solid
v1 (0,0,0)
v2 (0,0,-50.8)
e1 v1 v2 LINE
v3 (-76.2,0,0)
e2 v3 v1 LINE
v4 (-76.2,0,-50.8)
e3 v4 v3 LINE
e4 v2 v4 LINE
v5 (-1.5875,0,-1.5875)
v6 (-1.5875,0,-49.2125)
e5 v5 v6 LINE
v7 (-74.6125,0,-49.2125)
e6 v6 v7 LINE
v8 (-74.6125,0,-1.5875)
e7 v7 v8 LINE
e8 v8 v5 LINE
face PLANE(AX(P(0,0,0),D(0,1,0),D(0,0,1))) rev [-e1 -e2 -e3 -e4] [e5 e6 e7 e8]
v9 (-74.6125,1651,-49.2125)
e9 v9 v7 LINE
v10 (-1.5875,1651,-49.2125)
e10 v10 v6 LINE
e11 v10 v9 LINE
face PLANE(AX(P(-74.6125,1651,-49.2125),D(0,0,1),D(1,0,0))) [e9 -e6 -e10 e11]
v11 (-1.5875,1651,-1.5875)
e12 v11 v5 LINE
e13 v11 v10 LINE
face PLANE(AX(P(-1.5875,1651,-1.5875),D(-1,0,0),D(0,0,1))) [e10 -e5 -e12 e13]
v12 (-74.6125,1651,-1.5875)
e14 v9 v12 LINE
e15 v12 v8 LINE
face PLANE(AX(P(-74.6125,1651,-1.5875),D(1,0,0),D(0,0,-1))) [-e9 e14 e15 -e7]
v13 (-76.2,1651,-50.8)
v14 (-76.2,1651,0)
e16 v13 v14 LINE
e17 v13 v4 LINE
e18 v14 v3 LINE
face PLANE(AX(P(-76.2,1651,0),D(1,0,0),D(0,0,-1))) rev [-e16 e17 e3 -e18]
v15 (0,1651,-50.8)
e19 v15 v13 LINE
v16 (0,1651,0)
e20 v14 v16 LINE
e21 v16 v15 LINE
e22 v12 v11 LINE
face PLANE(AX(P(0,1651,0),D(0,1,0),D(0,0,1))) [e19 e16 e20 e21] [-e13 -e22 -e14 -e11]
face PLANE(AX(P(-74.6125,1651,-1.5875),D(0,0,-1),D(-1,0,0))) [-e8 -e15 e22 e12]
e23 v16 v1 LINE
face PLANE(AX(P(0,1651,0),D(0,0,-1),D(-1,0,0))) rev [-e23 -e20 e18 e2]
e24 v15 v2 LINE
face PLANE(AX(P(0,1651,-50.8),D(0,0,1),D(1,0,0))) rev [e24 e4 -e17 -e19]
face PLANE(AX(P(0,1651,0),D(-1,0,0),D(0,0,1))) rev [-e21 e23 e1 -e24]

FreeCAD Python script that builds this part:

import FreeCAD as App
import Part
import Sketcher

V = App.Vector
Q = App.Units.Quantity

doc = App.newDocument("Part")
params = doc.addObject("Spreadsheet::Sheet", "Params")
for row, (alias, value) in enumerate([
    ("sketch1_width", "3 in"),
    ("sketch1_height", "2 in"),
    ("sketch1_width2", "2.875 in"),
    ("sketch1_height2", "1.875 in"),
    ("pad1_length", "65 in"),
], start=1):
    params.set(f"A{row}", alias)
    params.set(f"B{row}", "=" + value)
    params.setAlias(f"B{row}", alias)

body = doc.addObject("PartDesign::Body", "Body")

# Sketch on XZ plane
sketch1 = doc.addObject("Sketcher::SketchObject", "Sketch")
body.addObject(sketch1)
sketch1.AttachmentSupport = (doc.XZ_Plane, [""])
sketch1.MapMode = "FlatFace"
sketch1.addGeometry([
    Part.LineSegment(V(-76, -51, 0), V(-76, 0, 0)),  # 0
    Part.LineSegment(V(-76, 0, 0), V(0, 0, 0)),  # 1
    Part.LineSegment(V(0, 0, 0), V(0, -51, 0)),  # 2
    Part.LineSegment(V(0, -51, 0), V(-76, -51, 0)),  # 3
    Part.LineSegment(V(-2, -2, 0), V(-75, -2, 0)),  # 4
    Part.LineSegment(V(-75, -2, 0), V(-75, -49, 0)),  # 5
    Part.LineSegment(V(-75, -49, 0), V(-2, -49, 0)),  # 6
    Part.LineSegment(V(-2, -49, 0), V(-2, -2, 0)),  # 7
], False)
sketch1.addConstraint([
    Sketcher.Constraint("Coincident", 0, 2, 1, 1),
    Sketcher.Constraint("Coincident", 1, 2, 2, 1),
    Sketcher.Constraint("Coincident", 2, 2, 3, 1),
    Sketcher.Constraint("Coincident", 3, 2, 0, 1),
    Sketcher.Constraint("Coincident", 4, 2, 5, 1),
    Sketcher.Constraint("Coincident", 5, 2, 6, 1),
    Sketcher.Constraint("Coincident", 6, 2, 7, 1),
    Sketcher.Constraint("Coincident", 7, 2, 4, 1),
    Sketcher.Constraint("Vertical", 0),
    Sketcher.Constraint("Horizontal", 1),
    Sketcher.Constraint("Vertical", 2),
    Sketcher.Constraint("Horizontal", 3),
    Sketcher.Constraint("Horizontal", 4),
    Sketcher.Constraint("Vertical", 5),
    Sketcher.Constraint("Horizontal", 6),
    Sketcher.Constraint("Vertical", 7),
    Sketcher.Constraint("Coincident", 1, 2, -1, 1),
    Sketcher.Constraint("DistanceX", 1, 1, 1, 2, Q("3 in")),
    Sketcher.Constraint("DistanceY", 0, 1, 0, 2, Q("2 in")),
    Sketcher.Constraint("DistanceX", 4, 2, 4, 1, Q("2.875 in")),
    Sketcher.Constraint("DistanceY", 5, 2, 5, 1, Q("1.875 in")),
    Sketcher.Constraint("DistanceX", 4, 2, -1, 1, Q("2.9375 in")),
    Sketcher.Constraint("DistanceY", 4, 2, -1, 1, Q("0.0625 in")),
])
sketch1.setExpression("Constraints[17]", "Params.sketch1_width")
sketch1.setExpression("Constraints[18]", "Params.sketch1_height")
sketch1.setExpression("Constraints[19]", "Params.sketch1_width2")
sketch1.setExpression("Constraints[20]", "Params.sketch1_height2")
pad1 = doc.addObject("PartDesign::Pad", "Pad")
body.addObject(pad1)
pad1.Profile = sketch1
pad1.setExpression("Length", "Params.pad1_length")
pad1.Reversed = True

doc.recompute()
